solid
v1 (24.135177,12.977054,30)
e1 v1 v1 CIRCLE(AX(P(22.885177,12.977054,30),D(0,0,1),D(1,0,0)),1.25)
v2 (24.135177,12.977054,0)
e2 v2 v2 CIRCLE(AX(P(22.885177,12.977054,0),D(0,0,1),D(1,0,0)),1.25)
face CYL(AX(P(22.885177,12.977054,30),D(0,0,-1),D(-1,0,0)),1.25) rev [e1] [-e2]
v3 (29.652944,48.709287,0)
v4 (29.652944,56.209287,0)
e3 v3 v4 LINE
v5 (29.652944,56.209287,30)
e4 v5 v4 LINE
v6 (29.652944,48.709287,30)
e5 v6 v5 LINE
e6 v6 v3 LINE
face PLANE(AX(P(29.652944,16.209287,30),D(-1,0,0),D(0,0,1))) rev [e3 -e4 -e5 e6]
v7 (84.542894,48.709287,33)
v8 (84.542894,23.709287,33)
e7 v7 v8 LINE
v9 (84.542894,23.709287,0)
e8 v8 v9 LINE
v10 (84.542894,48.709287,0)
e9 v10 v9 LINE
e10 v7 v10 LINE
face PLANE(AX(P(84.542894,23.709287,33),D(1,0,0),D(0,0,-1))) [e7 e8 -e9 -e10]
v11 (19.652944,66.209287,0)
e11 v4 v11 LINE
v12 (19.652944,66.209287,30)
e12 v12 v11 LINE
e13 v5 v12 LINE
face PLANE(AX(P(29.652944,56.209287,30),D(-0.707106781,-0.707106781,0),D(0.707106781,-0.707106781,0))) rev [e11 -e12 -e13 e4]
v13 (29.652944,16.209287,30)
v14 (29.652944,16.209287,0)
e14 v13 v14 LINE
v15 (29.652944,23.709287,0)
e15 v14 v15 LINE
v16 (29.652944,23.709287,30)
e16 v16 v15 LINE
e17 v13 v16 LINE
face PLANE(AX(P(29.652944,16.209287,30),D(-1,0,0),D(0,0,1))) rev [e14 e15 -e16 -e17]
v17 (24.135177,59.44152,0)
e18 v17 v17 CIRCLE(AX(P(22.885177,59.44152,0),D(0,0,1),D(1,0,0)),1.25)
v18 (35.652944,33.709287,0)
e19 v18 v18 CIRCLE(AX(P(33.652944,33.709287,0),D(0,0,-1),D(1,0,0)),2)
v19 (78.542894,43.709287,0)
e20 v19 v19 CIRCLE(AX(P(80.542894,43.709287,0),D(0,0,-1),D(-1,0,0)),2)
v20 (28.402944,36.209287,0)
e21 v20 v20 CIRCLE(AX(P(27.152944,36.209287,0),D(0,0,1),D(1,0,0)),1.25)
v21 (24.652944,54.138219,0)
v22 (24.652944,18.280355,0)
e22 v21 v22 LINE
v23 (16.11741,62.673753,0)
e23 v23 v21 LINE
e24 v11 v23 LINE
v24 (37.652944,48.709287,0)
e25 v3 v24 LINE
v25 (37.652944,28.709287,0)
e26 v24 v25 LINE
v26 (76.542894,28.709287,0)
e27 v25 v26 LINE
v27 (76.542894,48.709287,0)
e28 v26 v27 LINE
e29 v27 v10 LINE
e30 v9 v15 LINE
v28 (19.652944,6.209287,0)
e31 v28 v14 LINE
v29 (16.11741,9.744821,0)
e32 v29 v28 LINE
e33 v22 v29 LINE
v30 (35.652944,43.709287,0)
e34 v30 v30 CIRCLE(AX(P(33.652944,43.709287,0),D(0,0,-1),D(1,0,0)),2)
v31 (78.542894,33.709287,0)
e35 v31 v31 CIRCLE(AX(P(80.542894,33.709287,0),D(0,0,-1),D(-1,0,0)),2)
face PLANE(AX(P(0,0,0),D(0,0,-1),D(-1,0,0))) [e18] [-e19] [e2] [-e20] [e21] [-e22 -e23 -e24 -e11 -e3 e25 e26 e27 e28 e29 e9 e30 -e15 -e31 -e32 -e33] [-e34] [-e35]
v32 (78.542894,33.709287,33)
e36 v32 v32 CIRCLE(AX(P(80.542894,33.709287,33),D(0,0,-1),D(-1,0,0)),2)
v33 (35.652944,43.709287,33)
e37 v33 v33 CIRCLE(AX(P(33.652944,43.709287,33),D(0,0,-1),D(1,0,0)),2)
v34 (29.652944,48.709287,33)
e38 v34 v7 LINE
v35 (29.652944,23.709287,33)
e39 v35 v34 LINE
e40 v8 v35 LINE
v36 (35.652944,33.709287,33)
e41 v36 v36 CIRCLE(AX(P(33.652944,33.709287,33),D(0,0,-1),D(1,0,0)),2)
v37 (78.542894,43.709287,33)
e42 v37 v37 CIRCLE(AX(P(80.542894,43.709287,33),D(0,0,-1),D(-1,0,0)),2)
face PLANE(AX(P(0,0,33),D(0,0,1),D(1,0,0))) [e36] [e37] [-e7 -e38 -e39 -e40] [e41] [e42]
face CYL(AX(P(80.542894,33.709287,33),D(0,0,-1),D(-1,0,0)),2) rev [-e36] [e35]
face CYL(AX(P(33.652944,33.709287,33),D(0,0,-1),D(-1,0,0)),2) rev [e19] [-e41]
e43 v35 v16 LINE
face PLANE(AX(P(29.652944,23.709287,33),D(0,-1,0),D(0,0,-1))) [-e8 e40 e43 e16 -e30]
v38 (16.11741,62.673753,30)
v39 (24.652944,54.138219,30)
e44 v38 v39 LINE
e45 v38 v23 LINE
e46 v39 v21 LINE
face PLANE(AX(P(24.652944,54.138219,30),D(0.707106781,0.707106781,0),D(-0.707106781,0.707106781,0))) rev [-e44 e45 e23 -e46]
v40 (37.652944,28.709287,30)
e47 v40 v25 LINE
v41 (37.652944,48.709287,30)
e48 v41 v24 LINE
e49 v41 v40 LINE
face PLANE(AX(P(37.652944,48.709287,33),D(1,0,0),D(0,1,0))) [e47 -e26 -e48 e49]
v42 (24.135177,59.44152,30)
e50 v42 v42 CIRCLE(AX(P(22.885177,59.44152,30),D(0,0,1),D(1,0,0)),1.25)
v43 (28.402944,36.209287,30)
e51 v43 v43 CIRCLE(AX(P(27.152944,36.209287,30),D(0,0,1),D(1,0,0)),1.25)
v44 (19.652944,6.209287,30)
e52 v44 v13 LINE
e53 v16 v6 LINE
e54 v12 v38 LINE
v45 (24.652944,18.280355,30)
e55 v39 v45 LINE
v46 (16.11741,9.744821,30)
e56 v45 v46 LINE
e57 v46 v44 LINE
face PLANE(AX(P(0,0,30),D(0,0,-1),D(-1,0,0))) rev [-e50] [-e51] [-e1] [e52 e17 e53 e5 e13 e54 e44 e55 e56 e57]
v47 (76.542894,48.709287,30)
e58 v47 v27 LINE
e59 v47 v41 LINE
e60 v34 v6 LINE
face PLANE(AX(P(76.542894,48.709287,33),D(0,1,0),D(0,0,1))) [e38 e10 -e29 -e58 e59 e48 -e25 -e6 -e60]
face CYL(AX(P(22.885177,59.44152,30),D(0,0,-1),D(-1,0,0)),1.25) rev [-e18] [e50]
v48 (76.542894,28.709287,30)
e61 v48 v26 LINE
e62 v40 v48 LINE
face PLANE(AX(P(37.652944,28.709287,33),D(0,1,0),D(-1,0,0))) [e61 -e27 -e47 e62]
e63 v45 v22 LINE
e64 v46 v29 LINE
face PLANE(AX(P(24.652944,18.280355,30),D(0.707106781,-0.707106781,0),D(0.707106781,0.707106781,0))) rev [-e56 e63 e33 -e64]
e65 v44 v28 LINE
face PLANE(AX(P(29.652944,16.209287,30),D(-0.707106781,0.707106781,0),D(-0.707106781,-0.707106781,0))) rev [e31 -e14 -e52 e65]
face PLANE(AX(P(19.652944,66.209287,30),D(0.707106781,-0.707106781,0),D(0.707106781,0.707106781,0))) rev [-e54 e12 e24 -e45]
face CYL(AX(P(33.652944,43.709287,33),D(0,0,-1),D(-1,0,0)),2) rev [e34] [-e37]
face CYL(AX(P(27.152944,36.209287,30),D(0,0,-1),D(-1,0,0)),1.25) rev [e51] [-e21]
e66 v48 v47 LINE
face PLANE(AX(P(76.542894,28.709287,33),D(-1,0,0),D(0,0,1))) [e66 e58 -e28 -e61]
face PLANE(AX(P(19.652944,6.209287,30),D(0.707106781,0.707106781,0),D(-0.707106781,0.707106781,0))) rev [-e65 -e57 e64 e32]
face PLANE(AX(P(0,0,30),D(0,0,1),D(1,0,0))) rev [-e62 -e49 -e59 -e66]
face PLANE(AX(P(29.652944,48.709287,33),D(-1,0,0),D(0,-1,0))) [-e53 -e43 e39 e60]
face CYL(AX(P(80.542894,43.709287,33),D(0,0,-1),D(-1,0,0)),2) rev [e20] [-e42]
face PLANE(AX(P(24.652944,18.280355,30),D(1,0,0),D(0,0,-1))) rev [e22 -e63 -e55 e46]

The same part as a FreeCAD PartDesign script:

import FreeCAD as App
import Part
import Sketcher

V = App.Vector
Q = App.Units.Quantity


def add_polygon(sketch, points):
    """Adds a closed chain of lines whose ends are joined by coincident constraints."""
    first, n = sketch.GeometryCount, len(points)
    for a, b in zip(points, points[1:] + points[:1]):
        sketch.addGeometry(Part.LineSegment(App.Vector(*a, 0), App.Vector(*b, 0)), False)
    for i in range(n):
        sketch.addConstraint(Sketcher.Constraint("Coincident", first + i, 2, first + (i + 1) % n, 1))

doc = App.newDocument("Part")
body = doc.addObject("PartDesign::Body", "Body")

sketch1 = body.newObject("Sketcher::SketchObject", "Sketch")
sketch1.AttachmentSupport = (doc.getObject("XY_Plane"), [""])
sketch1.MapMode = "FlatFace"
add_polygon(sketch1, [(29.7, 16.2), (29.7, 56.2), (19.7, 66.2), (16.1, 62.7), (24.7, 54.1), (24.7, 18.3), (16.1, 9.7), (19.7, 6.2)])
sketch1.addGeometry(Part.Circle(V(22.9, 13, 0), V(0, 0, 1), 1.2), False)
sketch1.addGeometry(Part.Circle(V(27.2, 36.2, 0), V(0, 0, 1), 1.2), False)
sketch1.addGeometry(Part.Circle(V(22.9, 59.4, 0), V(0, 0, 1), 1.2), False)
sketch1.addConstraint([
    Sketcher.Constraint("Vertical", 0),
    Sketcher.Constraint("Vertical", 4),
    Sketcher.Constraint("Equal", 8, 9),
    Sketcher.Constraint("Equal", 9, 10),
    Sketcher.Constraint("Perpendicular", 1, 2),
    Sketcher.Constraint("Perpendicular", 2, 3),
    Sketcher.Constraint("Perpendicular", 3, 5),
    Sketcher.Constraint("Perpendicular", 5, 6),
    Sketcher.Constraint("Perpendicular", 6, 7),
    Sketcher.Constraint("Vertical", 8, 3, 10, 3),
    Sketcher.Constraint("Vertical", 2, 2, 5, 2),
    Sketcher.Constraint("Vertical", 1, 2, 6, 2),
    Sketcher.Constraint("Equal", 3, 5),
    Sketcher.Constraint("Diameter", 8, Q("2.5 mm")),
    Sketcher.Constraint("DistanceY", 0, 1, 0, 2, Q("40 mm")),
    Sketcher.Constraint("Distance", 2, Q("5 mm")),
    Sketcher.Constraint("DistanceY", 9, 3, 0, 2, Q("20 mm")),
    Sketcher.Constraint("DistanceX", 1, 2, 0, 2, Q("10 mm")),
    Sketcher.Constraint("DistanceX", 3, 2, 0, 2, Q("5 mm")),
    Sketcher.Constraint("DistanceX", 9, 3, 0, 2, Q("2.5 mm")),
    Sketcher.Constraint("DistanceY", 8, 3, 2, 2, Q("49.696699 mm")),
    Sketcher.Constraint("DistanceY", 3, 2, 10, 3, Q("5.303301 mm")),
    Sketcher.Constraint("DistanceY", -1, 1, 10, 3, Q("59.44152 mm")),
    Sketcher.Constraint("DistanceX", -1, 1, 2, 2, Q("16.11741 mm")),
    Sketcher.Constraint("DistanceX", -1, 1, 8, 3, Q("22.885177 mm")),
])
pad1 = body.newObject("PartDesign::Pad", "Pad")
pad1.Profile = sketch1
pad1.Length = 30

sketch2 = body.newObject("Sketcher::SketchObject", "Sketch001")
sketch2.AttachmentSupport = (doc.getObject("XY_Plane"), [""])
sketch2.MapMode = "FlatFace"
add_polygon(sketch2, [(37.7, 28.7), (76.5, 28.7), (76.5, 48.7), (84.5, 48.7), (84.5, 23.7), (29.7, 23.7), (29.7, 48.7), (37.7, 48.7)])
sketch2.addGeometry(Part.Circle(V(80.5, 33.7, 0), V(0, 0, 1), 2), False)
sketch2.addGeometry(Part.Circle(V(33.7, 33.7, 0), V(0, 0, 1), 2), False)
sketch2.addGeometry(Part.Circle(V(80.5, 43.7, 0), V(0, 0, 1), 2), False)
sketch2.addGeometry(Part.Circle(V(33.7, 43.7, 0), V(0, 0, 1), 2), False)
sketch2.addConstraint([
    Sketcher.Constraint("Horizontal", 0),
    Sketcher.Constraint("Vertical", 1),
    Sketcher.Constraint("Horizontal", 2),
    Sketcher.Constraint("Vertical", 3),
    Sketcher.Constraint("Horizontal", 4),
    Sketcher.Constraint("Vertical", 5),
    Sketcher.Constraint("Horizontal", 6),
    Sketcher.Constraint("Vertical", 7),
    Sketcher.Constraint("Equal", 8, 9),
    Sketcher.Constraint("Equal", 9, 10),
    Sketcher.Constraint("Equal", 10, 11),
    Sketcher.Constraint("Horizontal", 8, 3, 9, 3),
    Sketcher.Constraint("Horizontal", 10, 3, 11, 3),
    Sketcher.Constraint("Horizontal", 2, 2, 5, 2),
    Sketcher.Constraint("Vertical", 8, 3, 10, 3),
    Sketcher.Constraint("Vertical", 9, 3, 11, 3),
    Sketcher.Constraint("Equal", 2, 6),
    Sketcher.Constraint("Diameter", 8, Q("4 mm")),
    Sketcher.Constraint("DistanceX", 2, 1, 2, 2, Q("8 mm")),
    Sketcher.Constraint("DistanceY", 1, 1, 1, 2, Q("20 mm")),
    Sketcher.Constraint("DistanceY", 3, 2, 3, 1, Q("25 mm")),
    Sketcher.Constraint("DistanceY", 8, 3, 10, 3, Q("10 mm")),
    Sketcher.Constraint("DistanceX", 0, 2, 8, 3, Q("4 mm")),
    Sketcher.Constraint("DistanceY", 0, 2, 8, 3, Q("5 mm")),
    Sketcher.Constraint("DistanceX", 4, 2, 9, 3, Q("4 mm")),
    Sketcher.Constraint("DistanceX", 0, 1, 0, 2, Q("38.88995 mm")),
    Sketcher.Constraint("DistanceX", -1, 1, 8, 3, Q("80.542894 mm")),
    Sketcher.Constraint("DistanceY", -1, 1, 8, 3, Q("33.709287 mm")),
])
pad2 = body.newObject("PartDesign::Pad", "Pad001")
pad2.Profile = sketch2
pad2.Length = 33

sketch3 = body.newObject("Sketcher::SketchObject", "Sketch002")
sketch3.AttachmentSupport = (doc.getObject("XY_Plane"), [""])
sketch3.MapMode = "FlatFace"
sketch3.AttachmentOffset = App.Placement(V(0, 0, 33), App.Rotation())
add_polygon(sketch3, [(38, 49), (38, 29), (77, 29), (77, 49)])
sketch3.addConstraint([
    Sketcher.Constraint("Vertical", 0),
    Sketcher.Constraint("Horizontal", 1),
    Sketcher.Constraint("Vertical", 2),
    Sketcher.Constraint("Horizontal", 3),
    Sketcher.Constraint("DistanceY", 0, 2, 0, 1, Q("20 mm")),
    Sketcher.Constraint("DistanceX", 1, 1, 1, 2, Q("38.88995 mm")),
    Sketcher.Constraint("DistanceX", -1, 1, 0, 2, Q("37.652944 mm")),
    Sketcher.Constraint("DistanceY", -1, 1, 0, 2, Q("28.709287 mm")),
])
pad3 = body.newObject("PartDesign::Pad", "Pad002")
pad3.Profile = sketch3
pad3.Length = 3
pad3.Reversed = True

doc.recompute()
